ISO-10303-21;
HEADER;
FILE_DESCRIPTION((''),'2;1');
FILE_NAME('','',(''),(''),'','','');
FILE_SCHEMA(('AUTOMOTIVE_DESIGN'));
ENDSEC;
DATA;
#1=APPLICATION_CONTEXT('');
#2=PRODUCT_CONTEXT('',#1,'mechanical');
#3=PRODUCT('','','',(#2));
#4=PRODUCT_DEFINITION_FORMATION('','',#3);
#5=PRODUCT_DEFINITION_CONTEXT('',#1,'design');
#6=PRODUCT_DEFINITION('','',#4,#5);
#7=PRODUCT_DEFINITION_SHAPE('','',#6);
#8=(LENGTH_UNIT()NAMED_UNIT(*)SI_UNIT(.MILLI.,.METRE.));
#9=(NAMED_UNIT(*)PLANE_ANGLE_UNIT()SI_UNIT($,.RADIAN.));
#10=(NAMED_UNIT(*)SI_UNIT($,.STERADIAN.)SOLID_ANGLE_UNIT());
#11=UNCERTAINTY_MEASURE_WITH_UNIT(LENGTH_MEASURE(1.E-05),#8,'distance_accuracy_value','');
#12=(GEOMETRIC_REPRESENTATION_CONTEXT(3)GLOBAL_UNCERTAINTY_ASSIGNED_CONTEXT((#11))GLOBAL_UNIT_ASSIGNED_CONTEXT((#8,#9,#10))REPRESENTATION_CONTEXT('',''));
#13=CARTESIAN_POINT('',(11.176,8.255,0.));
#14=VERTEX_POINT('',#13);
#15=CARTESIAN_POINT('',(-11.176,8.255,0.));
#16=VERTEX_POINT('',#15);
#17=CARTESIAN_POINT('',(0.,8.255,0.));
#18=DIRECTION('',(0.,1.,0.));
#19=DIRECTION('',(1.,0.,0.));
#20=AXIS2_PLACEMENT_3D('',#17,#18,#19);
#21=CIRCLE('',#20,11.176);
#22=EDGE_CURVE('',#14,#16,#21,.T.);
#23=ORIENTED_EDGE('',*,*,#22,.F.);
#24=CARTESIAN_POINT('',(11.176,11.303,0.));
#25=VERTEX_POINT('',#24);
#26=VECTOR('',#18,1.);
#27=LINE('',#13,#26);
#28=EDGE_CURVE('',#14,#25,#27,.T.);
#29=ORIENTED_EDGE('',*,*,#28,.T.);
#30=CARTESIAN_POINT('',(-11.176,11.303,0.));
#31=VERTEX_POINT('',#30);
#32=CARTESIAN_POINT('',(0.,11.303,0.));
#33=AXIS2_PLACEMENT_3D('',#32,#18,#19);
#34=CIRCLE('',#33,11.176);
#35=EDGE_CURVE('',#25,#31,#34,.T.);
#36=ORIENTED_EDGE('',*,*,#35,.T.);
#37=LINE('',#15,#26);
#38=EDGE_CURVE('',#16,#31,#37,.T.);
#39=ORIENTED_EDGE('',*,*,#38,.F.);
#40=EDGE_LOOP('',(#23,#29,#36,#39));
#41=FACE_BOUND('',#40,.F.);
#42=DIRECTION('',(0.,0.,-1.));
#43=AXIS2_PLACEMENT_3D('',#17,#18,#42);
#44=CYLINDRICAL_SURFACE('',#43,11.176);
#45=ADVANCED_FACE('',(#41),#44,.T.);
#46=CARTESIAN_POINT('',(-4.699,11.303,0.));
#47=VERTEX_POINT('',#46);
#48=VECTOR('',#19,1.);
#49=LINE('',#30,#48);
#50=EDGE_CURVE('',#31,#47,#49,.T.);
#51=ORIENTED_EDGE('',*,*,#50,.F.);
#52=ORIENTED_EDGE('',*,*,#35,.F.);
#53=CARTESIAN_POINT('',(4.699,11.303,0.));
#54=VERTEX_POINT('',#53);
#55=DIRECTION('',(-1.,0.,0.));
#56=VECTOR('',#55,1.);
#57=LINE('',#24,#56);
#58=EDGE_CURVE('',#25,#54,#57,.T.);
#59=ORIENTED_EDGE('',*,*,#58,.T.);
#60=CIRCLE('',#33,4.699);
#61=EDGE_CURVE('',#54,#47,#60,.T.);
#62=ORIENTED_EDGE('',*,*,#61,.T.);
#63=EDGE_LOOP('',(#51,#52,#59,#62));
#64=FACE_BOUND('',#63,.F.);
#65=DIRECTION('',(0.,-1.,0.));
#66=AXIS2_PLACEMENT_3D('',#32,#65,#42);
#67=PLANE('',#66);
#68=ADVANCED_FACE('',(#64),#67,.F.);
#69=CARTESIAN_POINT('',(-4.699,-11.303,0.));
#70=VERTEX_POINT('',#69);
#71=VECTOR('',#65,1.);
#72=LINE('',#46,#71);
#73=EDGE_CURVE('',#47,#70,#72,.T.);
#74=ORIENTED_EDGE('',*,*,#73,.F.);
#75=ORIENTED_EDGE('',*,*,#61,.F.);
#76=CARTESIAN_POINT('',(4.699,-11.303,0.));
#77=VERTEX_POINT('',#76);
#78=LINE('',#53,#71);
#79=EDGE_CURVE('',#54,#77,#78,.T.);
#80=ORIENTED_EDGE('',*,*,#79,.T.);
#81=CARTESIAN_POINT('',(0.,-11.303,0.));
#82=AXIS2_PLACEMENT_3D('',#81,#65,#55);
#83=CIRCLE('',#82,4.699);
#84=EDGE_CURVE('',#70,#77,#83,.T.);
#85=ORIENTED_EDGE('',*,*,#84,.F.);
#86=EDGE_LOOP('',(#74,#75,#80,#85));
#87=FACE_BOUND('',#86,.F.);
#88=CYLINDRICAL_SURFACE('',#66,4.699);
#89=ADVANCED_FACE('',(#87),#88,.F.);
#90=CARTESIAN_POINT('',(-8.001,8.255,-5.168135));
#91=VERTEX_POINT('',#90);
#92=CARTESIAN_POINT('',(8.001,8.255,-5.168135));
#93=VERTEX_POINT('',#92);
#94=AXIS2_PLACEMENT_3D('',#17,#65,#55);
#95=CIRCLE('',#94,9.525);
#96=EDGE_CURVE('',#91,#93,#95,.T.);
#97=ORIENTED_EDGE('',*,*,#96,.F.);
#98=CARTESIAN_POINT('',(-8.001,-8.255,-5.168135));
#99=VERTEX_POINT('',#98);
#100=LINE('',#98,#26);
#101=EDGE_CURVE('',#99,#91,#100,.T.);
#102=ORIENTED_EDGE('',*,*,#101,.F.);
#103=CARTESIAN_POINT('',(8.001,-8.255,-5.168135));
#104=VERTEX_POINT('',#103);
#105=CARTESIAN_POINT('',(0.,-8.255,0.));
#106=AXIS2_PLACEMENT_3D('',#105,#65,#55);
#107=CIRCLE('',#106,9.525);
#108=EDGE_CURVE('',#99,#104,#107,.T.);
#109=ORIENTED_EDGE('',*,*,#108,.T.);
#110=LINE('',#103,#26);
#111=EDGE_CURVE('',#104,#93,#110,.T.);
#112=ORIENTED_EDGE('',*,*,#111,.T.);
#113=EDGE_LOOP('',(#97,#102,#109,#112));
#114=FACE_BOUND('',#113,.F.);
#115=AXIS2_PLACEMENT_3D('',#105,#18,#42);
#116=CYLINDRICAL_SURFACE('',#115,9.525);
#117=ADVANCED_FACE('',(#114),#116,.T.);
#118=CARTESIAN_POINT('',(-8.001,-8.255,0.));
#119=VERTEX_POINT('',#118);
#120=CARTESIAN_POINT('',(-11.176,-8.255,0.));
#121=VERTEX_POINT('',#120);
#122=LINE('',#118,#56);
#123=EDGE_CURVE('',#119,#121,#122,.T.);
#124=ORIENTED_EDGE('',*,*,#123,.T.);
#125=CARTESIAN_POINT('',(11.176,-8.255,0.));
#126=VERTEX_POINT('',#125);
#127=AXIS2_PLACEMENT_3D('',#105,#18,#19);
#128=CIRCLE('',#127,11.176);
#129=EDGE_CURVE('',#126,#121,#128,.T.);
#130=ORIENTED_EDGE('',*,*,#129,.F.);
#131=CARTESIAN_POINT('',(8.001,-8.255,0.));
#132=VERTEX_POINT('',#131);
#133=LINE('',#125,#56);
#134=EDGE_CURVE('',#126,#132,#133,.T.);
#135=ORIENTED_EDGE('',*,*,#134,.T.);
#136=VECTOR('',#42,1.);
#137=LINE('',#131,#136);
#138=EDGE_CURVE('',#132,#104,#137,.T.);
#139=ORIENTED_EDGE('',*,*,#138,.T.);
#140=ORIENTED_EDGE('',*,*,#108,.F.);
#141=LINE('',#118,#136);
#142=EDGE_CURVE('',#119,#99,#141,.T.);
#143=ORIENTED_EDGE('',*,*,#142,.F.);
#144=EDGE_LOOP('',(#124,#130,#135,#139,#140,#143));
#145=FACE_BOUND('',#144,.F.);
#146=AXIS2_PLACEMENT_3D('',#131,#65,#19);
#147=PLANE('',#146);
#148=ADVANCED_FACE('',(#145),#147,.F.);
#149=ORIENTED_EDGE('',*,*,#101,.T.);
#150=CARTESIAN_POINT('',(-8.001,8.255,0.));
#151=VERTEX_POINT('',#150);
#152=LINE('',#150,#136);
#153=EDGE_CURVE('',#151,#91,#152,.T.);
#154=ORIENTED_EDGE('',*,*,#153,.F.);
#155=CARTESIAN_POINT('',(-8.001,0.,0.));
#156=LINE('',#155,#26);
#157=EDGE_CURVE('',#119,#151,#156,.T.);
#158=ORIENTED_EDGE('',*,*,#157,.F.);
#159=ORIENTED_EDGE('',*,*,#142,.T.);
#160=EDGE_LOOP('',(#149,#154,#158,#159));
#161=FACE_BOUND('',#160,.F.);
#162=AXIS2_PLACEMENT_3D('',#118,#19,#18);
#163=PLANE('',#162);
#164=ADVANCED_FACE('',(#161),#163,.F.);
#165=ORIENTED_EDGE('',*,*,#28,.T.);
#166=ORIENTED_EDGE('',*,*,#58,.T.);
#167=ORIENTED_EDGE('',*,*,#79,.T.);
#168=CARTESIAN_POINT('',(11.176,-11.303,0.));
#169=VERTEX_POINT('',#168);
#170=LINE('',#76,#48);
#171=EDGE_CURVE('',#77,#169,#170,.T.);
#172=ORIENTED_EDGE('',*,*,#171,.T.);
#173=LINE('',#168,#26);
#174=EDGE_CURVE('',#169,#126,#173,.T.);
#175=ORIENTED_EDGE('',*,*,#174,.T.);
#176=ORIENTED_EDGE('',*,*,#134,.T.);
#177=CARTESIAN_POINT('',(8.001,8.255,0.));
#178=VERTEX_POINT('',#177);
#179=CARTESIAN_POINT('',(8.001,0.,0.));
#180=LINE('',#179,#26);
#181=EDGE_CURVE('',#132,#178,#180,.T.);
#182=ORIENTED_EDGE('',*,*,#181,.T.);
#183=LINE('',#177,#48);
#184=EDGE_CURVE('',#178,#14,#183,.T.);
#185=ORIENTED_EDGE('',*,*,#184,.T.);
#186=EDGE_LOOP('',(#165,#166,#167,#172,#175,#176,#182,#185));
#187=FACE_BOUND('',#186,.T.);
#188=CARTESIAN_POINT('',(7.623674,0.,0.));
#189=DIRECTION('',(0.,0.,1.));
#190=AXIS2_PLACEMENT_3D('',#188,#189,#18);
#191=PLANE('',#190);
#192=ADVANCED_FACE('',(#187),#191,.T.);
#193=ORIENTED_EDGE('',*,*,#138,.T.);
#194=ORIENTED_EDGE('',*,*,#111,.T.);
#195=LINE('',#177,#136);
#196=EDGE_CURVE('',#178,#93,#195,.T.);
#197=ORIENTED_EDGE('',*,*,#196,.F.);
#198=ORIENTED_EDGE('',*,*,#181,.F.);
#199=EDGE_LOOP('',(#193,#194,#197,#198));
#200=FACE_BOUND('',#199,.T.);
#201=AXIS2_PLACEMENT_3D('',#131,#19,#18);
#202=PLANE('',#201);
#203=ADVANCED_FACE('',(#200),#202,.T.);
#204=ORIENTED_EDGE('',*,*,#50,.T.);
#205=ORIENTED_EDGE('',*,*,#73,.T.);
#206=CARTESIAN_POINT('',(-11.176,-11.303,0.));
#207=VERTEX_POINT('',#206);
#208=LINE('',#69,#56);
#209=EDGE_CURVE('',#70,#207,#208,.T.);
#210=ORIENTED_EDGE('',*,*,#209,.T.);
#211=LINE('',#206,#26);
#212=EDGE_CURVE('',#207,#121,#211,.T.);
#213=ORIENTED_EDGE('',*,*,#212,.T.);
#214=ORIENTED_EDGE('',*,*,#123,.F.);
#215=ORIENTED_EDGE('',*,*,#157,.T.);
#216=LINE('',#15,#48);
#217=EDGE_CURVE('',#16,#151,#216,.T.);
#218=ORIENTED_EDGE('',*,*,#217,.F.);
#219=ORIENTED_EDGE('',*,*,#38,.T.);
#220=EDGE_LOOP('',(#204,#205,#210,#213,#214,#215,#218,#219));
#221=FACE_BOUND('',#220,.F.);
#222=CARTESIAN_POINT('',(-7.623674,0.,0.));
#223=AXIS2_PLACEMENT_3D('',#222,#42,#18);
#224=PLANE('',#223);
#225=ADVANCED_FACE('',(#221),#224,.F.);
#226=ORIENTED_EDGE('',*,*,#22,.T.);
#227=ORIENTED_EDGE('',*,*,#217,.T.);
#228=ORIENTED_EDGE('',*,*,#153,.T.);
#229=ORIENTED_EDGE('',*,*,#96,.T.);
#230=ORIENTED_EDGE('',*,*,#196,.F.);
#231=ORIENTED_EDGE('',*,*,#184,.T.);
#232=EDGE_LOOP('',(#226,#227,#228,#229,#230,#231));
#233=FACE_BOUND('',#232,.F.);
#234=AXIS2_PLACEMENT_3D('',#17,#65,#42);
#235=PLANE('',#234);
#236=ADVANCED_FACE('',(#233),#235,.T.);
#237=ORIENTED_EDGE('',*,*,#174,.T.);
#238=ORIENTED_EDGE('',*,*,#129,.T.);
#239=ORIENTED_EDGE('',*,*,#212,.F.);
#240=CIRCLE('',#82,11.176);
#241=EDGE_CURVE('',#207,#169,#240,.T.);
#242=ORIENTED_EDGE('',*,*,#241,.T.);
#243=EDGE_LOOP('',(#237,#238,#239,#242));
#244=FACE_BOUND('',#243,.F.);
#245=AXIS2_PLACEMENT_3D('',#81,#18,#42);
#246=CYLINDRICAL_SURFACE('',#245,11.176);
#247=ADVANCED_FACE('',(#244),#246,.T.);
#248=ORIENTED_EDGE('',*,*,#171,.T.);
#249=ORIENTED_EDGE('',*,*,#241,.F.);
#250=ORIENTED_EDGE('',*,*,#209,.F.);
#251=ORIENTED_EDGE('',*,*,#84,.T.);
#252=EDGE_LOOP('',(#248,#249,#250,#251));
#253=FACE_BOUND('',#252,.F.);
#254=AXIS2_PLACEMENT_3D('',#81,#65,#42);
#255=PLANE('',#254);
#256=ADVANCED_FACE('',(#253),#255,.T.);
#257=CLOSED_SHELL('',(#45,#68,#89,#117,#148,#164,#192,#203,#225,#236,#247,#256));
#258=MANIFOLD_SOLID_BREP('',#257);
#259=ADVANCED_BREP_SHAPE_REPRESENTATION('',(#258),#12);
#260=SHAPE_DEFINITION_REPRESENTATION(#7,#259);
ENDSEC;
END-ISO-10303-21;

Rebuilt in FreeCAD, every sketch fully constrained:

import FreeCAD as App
import Part
import Sketcher
from FreeCAD import Vector
Q = App.Units.Quantity


def add_polygon(sketch, points):
    """Adds a closed chain of lines whose ends are joined by coincident constraints."""
    first, n = sketch.GeometryCount, len(points)
    for a, b in zip(points, points[1:] + points[:1]):
        sketch.addGeometry(Part.LineSegment(App.Vector(*a, 0), App.Vector(*b, 0)), False)
    for i in range(n):
        sketch.addConstraint(Sketcher.Constraint("Coincident", first + i, 2, first + (i + 1) % n, 1))

doc = App.newDocument("Part")
body = doc.addObject("PartDesign::Body", "Body")

# Sketch on YZ plane
sketch1 = body.newObject("Sketcher::SketchObject", "Sketch")
sketch1.AttachmentSupport = (doc.getObject("YZ_Plane"), [""])
sketch1.MapMode = "FlatFace"
add_polygon(sketch1, [(11.3, -4.7), (-11.3, -4.7), (-11.3, -11.2), (-8.3, -11.2), (-8.3, -9.5), (8.3, -9.5), (8.3, -11.2), (11.3, -11.2)])  # lines 0-7
sketch1.addConstraint([
    Sketcher.Constraint("Horizontal", 0),
    Sketcher.Constraint("Vertical", 1),
    Sketcher.Constraint("Horizontal", 2),
    Sketcher.Constraint("Vertical", 3),
    Sketcher.Constraint("Horizontal", 4),
    Sketcher.Constraint("Vertical", 5),
    Sketcher.Constraint("Horizontal", 6),
    Sketcher.Constraint("Vertical", 7),
    Sketcher.Constraint("Symmetric", 2, 2, 5, 2, -2),
    Sketcher.Constraint("Equal", 2, 6),
    Sketcher.Constraint("DistanceX", 0, 2, 0, 1, Q("0.89 in")),
    Sketcher.Constraint("DistanceX", 2, 1, 2, 2, Q("0.12 in")),
    Sketcher.Constraint("DistanceY", 1, 2, 1, 1, Q("0.255 in")),
    Sketcher.Constraint("DistanceY", 3, 1, 3, 2, Q("0.065 in")),
    Sketcher.Constraint("DistanceY", 1, 2, -1, 1, Q("0.44 in")),
])
revolution = body.newObject("PartDesign::Revolution", "Revolution")
revolution.Profile = sketch1
revolution.ReferenceAxis = (sketch1, ["H_Axis"])
revolution.Angle = 90

# Sketch on YZ plane
sketch2 = body.newObject("Sketcher::SketchObject", "Sketch001")
sketch2.AttachmentSupport = (doc.getObject("YZ_Plane"), [""])
sketch2.MapMode = "FlatFace"
add_polygon(sketch2, [(11.3, -4.7), (-11.3, -4.7), (-11.3, -11.2), (-8.3, -11.2), (-8.3, -9.5), (8.3, -9.5), (8.3, -11.2), (11.3, -11.2)])  # lines 0-7
sketch2.addConstraint([
    Sketcher.Constraint("Horizontal", 0),
    Sketcher.Constraint("Vertical", 1),
    Sketcher.Constraint("Horizontal", 2),
    Sketcher.Constraint("Vertical", 3),
    Sketcher.Constraint("Horizontal", 4),
    Sketcher.Constraint("Vertical", 5),
    Sketcher.Constraint("Horizontal", 6),
    Sketcher.Constraint("Vertical", 7),
    Sketcher.Constraint("Symmetric", 2, 2, 5, 2, -2),
    Sketcher.Constraint("Equal", 2, 6),
    Sketcher.Constraint("DistanceX", 0, 2, 0, 1, Q("0.89 in")),
    Sketcher.Constraint("DistanceX", 2, 1, 2, 2, Q("0.12 in")),
    Sketcher.Constraint("DistanceY", 1, 2, 1, 1, Q("0.255 in")),
    Sketcher.Constraint("DistanceY", 3, 1, 3, 2, Q("0.065 in")),
    Sketcher.Constraint("DistanceY", 1, 2, -1, 1, Q("0.44 in")),
])
revolution2 = body.newObject("PartDesign::Revolution", "Revolution001")
revolution2.Profile = sketch2
revolution2.ReferenceAxis = (sketch2, ["H_Axis"])
revolution2.Angle = 90
revolution2.Reversed = True

# Sketch on XY plane
sketch3 = body.newObject("Sketcher::SketchObject", "Sketch002")
sketch3.AttachmentSupport = (doc.getObject("XY_Plane"), [""])
sketch3.MapMode = "FlatFace"
add_polygon(sketch3, [(-9.5, 8.3), (-9.5, -8.3), (-8, -8.3), (-8, 8.3)])  # lines 0-3
add_polygon(sketch3, [(8, 8.3), (8, -8.3), (9.5, -8.3), (9.5, 8.3)])  # lines 4-7
sketch3.addConstraint([
    Sketcher.Constraint("Vertical", 0),
    Sketcher.Constraint("Horizontal", 1),
    Sketcher.Constraint("Vertical", 2),
    Sketcher.Constraint("Horizontal", 3),
    Sketcher.Constraint("Vertical", 4),
    Sketcher.Constraint("Horizontal", 5),
    Sketcher.Constraint("Vertical", 6),
    Sketcher.Constraint("Horizontal", 7),
    Sketcher.Constraint("Symmetric", 2, 2, 4, 2, -1, 1),
    Sketcher.Constraint("Symmetric", 0, 2, 6, 2, -1, 1),
    Sketcher.Constraint("Horizontal", 1, 2, 4, 2),
    Sketcher.Constraint("DistanceX", 1, 1, 1, 2, Q("0.06 in")),
    Sketcher.Constraint("DistanceY", 0, 2, 0, 1, Q("0.65 in")),
    Sketcher.Constraint("DistanceX", 1, 2, 4, 2, Q("0.63 in")),
])
pocket1 = body.newObject("PartDesign::Pocket", "Pocket")
pocket1.Profile = sketch3
pocket1.Type = "ThroughAll"

doc.recompute()
